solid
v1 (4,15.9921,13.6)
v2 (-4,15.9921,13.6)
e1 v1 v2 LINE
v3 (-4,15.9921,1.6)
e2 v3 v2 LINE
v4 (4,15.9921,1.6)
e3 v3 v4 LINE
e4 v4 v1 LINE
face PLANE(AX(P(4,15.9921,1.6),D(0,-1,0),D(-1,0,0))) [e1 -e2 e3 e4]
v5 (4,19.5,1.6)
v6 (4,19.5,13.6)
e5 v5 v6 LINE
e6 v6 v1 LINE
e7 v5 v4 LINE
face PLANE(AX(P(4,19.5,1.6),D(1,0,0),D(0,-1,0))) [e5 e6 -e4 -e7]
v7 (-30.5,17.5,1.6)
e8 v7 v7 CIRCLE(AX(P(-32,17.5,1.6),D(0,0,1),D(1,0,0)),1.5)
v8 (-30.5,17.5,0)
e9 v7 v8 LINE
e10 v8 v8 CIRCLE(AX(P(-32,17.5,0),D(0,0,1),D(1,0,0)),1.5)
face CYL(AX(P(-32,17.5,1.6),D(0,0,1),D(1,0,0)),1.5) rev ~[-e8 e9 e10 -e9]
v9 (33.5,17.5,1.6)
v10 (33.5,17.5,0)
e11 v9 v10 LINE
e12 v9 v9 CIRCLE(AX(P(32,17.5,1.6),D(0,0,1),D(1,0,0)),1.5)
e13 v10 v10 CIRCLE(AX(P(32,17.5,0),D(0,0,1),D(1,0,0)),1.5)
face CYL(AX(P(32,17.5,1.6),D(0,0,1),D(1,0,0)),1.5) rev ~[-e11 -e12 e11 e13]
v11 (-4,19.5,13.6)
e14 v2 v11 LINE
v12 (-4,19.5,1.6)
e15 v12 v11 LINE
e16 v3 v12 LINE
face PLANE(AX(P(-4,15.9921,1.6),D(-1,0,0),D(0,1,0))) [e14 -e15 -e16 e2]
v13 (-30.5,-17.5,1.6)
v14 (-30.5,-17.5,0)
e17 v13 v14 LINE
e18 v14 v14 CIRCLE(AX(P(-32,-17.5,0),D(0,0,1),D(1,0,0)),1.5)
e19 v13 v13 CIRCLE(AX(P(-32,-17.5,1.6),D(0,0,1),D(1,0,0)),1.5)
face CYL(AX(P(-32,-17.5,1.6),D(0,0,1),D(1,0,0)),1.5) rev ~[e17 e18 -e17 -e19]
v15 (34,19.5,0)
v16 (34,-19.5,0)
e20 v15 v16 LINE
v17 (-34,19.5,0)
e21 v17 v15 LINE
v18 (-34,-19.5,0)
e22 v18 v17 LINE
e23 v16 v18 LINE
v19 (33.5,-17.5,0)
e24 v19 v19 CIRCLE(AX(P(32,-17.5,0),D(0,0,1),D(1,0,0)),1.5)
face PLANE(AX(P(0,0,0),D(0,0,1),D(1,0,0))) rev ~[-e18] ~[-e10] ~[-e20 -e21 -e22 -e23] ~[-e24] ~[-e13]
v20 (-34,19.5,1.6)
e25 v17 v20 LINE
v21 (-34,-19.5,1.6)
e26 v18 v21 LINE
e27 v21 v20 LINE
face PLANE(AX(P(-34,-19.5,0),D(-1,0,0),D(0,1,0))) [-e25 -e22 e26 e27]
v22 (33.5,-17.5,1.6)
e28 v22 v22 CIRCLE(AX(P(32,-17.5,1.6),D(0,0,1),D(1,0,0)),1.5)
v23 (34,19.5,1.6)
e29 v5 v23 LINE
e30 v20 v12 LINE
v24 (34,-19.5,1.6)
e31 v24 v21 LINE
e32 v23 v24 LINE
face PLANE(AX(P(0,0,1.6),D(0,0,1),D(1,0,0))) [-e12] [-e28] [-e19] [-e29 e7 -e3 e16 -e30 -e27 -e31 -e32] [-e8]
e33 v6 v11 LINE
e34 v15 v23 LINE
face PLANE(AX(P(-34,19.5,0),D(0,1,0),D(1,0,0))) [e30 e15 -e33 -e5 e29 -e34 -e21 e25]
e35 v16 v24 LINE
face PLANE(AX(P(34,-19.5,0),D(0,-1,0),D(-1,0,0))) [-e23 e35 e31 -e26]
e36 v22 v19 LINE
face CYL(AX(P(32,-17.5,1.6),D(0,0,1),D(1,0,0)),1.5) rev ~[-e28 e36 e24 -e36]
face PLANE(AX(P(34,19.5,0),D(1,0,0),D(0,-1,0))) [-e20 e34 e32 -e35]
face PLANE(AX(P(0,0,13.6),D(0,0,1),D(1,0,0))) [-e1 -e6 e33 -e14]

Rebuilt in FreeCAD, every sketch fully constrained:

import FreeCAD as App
import Part
import Sketcher

doc = App.newDocument("Part")
body = doc.addObject("PartDesign::Body", "Body")

sketch1 = body.newObject("Sketcher::SketchObject", "Sketch")
sketch1.AttachmentSupport = (doc.getObject("XY_Plane"), [""])
sketch1.MapMode = "FlatFace"
sketch1.addGeometry(Part.LineSegment(App.Vector(34, 20, 0), App.Vector(-34, 20, 0)), False)
sketch1.addGeometry(Part.LineSegment(App.Vector(-34, 20, 0), App.Vector(-34, -20, 0)), False)
sketch1.addGeometry(Part.LineSegment(App.Vector(-34, -20, 0), App.Vector(34, -20, 0)), False)
sketch1.addGeometry(Part.LineSegment(App.Vector(34, -20, 0), App.Vector(34, 20, 0)), False)
sketch1.addConstraint(Sketcher.Constraint("Coincident", 0, 2, 1, 1))
sketch1.addConstraint(Sketcher.Constraint("Coincident", 1, 2, 2, 1))
sketch1.addConstraint(Sketcher.Constraint("Coincident", 2, 2, 3, 1))
sketch1.addConstraint(Sketcher.Constraint("Coincident", 3, 2, 0, 1))
sketch1.addConstraint(Sketcher.Constraint("Horizontal", 0))
sketch1.addConstraint(Sketcher.Constraint("Vertical", 1))
sketch1.addConstraint(Sketcher.Constraint("Horizontal", 2))
sketch1.addConstraint(Sketcher.Constraint("Vertical", 3))
sketch1.addConstraint(Sketcher.Constraint("Symmetric", 0, 2, 2, 2, -1, 1))
sketch1.addConstraint(Sketcher.Constraint("DistanceX", 0, 2, 0, 1, 68.0))
sketch1.addConstraint(Sketcher.Constraint("DistanceY", 1, 2, 1, 1, 39.0))
pad1 = body.newObject("PartDesign::Pad", "Pad")
pad1.Profile = sketch1
pad1.Length = 1.6

sketch2 = body.newObject("Sketcher::SketchObject", "Sketch001")
sketch2.AttachmentSupport = (doc.getObject("XY_Plane"), [""])
sketch2.MapMode = "FlatFace"
sketch2.AttachmentOffset = App.Placement(App.Vector(0, 0, 1.6), App.Rotation())
sketch2.addGeometry(Part.Circle(App.Vector(-32, 17.5, 0), App.Vector(0, 0, 1), 1.5), False)
sketch2.addGeometry(Part.Circle(App.Vector(32, 17.5, 0), App.Vector(0, 0, 1), 1.5), False)
sketch2.addGeometry(Part.Circle(App.Vector(32, -17.5, 0), App.Vector(0, 0, 1), 1.5), False)
sketch2.addGeometry(Part.Circle(App.Vector(-32, -17.5, 0), App.Vector(0, 0, 1), 1.5), False)
sketch2.addConstraint(Sketcher.Constraint("Equal", 0, 1))
sketch2.addConstraint(Sketcher.Constraint("Equal", 1, 2))
sketch2.addConstraint(Sketcher.Constraint("Equal", 2, 3))
sketch2.addConstraint(Sketcher.Constraint("Symmetric", 0, 3, 2, 3, -1, 1))
sketch2.addConstraint(Sketcher.Constraint("Symmetric", 1, 3, 3, 3, -1, 1))
sketch2.addConstraint(Sketcher.Constraint("Symmetric", 0, 3, 1, 3, -2))
sketch2.addConstraint(Sketcher.Constraint("Diameter", 0, 3.0))
sketch2.addConstraint(Sketcher.Constraint("DistanceX", 0, 3, -1, 1, 32.0))
sketch2.addConstraint(Sketcher.Constraint("DistanceY", 2, 3, 1, 3, 35.0))
pocket1 = body.newObject("PartDesign::Pocket", "Pocket")
pocket1.Profile = sketch2
pocket1.Length = 1.6

sketch3 = body.newObject("Sketcher::SketchObject", "Sketch002")
sketch3.AttachmentSupport = (doc.getObject("XY_Plane"), [""])
sketch3.MapMode = "FlatFace"
sketch3.AttachmentOffset = App.Placement(App.Vector(0, 0, 1.6), App.Rotation())
sketch3.addGeometry(Part.LineSegment(App.Vector(4, 16, 0), App.Vector(4, 19.5, 0)), False)
sketch3.addGeometry(Part.LineSegment(App.Vector(4, 19.5, 0), App.Vector(-4, 19.5, 0)), False)
sketch3.addGeometry(Part.LineSegment(App.Vector(-4, 19.5, 0), App.Vector(-4, 16, 0)), False)
sketch3.addGeometry(Part.LineSegment(App.Vector(-4, 16, 0), App.Vector(4, 16, 0)), False)
sketch3.addConstraint(Sketcher.Constraint("Coincident", 0, 2, 1, 1))
sketch3.addConstraint(Sketcher.Constraint("Coincident", 1, 2, 2, 1))
sketch3.addConstraint(Sketcher.Constraint("Coincident", 2, 2, 3, 1))
sketch3.addConstraint(Sketcher.Constraint("Coincident", 3, 2, 0, 1))
sketch3.addConstraint(Sketcher.Constraint("Vertical", 0))
sketch3.addConstraint(Sketcher.Constraint("Horizontal", 1))
sketch3.addConstraint(Sketcher.Constraint("Vertical", 2))
sketch3.addConstraint(Sketcher.Constraint("Horizontal", 3))
sketch3.addConstraint(Sketcher.Constraint("DistanceX", 1, 2, 1, 1, 8.0))
sketch3.addConstraint(Sketcher.Constraint("DistanceX", -1, 1, 0, 2, 4.0))
sketch3.addConstraint(Sketcher.Constraint("DistanceY", -1, 1, 0, 2, 19.5))
sketch3.addConstraint(Sketcher.Constraint("DistanceY", 0, 1, 0, 2, 3.508))
pad2 = body.newObject("PartDesign::Pad", "Pad001")
pad2.Profile = sketch3
pad2.Length = 12

doc.recompute()
